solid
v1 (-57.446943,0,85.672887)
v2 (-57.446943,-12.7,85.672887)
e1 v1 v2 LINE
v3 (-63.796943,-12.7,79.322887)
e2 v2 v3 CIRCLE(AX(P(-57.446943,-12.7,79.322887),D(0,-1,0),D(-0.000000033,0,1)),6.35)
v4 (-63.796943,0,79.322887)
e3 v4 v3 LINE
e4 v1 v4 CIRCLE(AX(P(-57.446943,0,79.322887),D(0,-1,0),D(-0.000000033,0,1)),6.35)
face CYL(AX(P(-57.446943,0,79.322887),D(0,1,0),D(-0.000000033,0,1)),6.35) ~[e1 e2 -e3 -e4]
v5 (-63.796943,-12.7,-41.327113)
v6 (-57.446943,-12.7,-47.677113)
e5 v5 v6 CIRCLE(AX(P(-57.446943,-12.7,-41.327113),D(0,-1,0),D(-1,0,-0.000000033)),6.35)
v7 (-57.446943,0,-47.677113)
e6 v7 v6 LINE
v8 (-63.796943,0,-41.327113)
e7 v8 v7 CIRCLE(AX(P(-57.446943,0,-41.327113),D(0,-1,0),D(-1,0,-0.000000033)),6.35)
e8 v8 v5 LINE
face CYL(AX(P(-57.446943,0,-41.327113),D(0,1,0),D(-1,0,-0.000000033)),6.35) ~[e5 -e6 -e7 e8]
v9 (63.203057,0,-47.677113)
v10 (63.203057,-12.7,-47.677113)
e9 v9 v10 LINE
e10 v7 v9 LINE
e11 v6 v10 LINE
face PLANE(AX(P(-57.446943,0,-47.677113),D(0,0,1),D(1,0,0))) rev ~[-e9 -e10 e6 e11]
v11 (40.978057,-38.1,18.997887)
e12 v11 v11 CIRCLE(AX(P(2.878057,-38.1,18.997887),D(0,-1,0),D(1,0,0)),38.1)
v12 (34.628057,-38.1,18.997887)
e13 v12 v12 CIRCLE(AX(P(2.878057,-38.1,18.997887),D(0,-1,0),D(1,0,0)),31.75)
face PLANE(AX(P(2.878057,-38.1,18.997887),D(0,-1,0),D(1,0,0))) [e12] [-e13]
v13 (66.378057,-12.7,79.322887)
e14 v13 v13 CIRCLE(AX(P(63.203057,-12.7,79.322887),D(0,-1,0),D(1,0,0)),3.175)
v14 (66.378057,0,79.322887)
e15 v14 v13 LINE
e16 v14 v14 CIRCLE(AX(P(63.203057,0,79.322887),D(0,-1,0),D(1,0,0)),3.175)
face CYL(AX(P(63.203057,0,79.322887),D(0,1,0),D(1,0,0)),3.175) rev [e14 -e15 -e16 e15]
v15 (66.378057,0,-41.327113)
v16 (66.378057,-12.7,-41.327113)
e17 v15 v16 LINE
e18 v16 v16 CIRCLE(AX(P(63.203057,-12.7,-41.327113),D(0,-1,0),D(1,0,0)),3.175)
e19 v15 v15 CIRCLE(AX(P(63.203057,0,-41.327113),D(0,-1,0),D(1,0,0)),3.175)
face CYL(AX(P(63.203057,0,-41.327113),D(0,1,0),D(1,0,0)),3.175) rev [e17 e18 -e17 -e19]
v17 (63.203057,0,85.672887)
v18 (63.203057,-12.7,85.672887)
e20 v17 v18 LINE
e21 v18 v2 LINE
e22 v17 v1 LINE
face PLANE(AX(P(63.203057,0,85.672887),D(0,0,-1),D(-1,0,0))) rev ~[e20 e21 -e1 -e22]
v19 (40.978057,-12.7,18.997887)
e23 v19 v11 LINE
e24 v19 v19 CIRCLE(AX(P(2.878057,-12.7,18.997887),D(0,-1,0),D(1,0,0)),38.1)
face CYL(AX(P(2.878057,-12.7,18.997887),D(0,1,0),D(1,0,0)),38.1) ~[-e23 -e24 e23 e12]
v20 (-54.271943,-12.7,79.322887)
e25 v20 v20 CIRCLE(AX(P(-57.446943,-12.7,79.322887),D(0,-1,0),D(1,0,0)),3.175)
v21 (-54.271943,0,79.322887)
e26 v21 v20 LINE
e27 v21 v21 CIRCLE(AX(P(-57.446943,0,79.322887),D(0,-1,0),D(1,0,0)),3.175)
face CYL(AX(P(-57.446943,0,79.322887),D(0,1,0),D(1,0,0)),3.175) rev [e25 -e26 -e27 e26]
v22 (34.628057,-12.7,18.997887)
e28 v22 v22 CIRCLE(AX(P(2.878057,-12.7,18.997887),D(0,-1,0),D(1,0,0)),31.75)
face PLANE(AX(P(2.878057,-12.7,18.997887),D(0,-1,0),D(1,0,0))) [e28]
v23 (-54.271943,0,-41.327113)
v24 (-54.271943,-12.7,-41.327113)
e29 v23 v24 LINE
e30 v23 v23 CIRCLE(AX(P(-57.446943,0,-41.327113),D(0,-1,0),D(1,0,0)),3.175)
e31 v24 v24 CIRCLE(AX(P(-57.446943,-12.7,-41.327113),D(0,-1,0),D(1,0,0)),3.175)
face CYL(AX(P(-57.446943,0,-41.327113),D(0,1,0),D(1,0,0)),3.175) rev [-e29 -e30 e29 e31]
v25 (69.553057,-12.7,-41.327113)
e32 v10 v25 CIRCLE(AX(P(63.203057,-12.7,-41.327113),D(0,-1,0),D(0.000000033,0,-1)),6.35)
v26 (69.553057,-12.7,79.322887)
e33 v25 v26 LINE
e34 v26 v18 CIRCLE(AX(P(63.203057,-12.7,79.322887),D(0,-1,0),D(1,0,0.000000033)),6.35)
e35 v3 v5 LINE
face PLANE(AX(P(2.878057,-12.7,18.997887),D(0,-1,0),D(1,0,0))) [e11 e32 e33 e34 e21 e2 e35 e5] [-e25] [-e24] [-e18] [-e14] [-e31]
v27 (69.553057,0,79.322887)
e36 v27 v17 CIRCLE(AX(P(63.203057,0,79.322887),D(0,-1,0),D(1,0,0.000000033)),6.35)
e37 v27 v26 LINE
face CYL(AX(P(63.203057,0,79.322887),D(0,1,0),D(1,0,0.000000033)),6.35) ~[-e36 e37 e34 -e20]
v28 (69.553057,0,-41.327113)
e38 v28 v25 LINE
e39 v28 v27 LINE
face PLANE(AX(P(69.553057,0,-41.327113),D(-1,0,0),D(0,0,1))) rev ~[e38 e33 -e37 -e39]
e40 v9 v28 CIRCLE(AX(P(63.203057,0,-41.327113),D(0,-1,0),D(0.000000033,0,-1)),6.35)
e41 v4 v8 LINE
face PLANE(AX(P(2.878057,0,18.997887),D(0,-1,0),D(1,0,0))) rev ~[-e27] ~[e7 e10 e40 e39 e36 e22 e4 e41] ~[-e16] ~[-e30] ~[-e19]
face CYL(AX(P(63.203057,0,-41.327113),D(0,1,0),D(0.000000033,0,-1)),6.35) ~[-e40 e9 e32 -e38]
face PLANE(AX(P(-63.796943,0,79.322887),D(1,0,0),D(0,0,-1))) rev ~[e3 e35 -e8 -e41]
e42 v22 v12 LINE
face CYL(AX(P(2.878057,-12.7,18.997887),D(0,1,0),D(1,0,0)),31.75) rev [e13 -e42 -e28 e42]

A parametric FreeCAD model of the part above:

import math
import FreeCAD as App
import Part
import Sketcher
Q = App.Units.Quantity

doc = App.newDocument("Part")
body = doc.addObject("PartDesign::Body", "Body")

sketch1 = doc.addObject("Sketcher::SketchObject", "Sketch")
body.addObject(sketch1)
sketch1.AttachmentSupport = (doc.XZ_Plane, [""])
sketch1.MapMode = "FlatFace"
sketch1.addGeometry([
    Part.LineSegment(App.Vector(63.2, 85.7, 0), App.Vector(-57.4, 85.7, 0)),
    Part.ArcOfCircle(Part.Circle(App.Vector(-57.4, 79.3, 0), App.Vector(0, 0, 1), 6.4), math.radians(90), math.radians(180)),
    Part.LineSegment(App.Vector(-63.8, 79.3, 0), App.Vector(-63.8, -41.3, 0)),
    Part.ArcOfCircle(Part.Circle(App.Vector(-57.4, -41.3, 0), App.Vector(0, 0, 1), 6.4), math.radians(-180), math.radians(-90)),
    Part.LineSegment(App.Vector(-57.4, -47.7, 0), App.Vector(63.2, -47.7, 0)),
    Part.ArcOfCircle(Part.Circle(App.Vector(63.2, -41.3, 0), App.Vector(0, 0, 1), 6.4), math.radians(-90), math.radians(0)),
    Part.LineSegment(App.Vector(69.6, -41.3, 0), App.Vector(69.6, 79.3, 0)),
    Part.ArcOfCircle(Part.Circle(App.Vector(63.2, 79.3, 0), App.Vector(0, 0, 1), 6.4), math.radians(0), math.radians(90)),
    Part.Circle(App.Vector(-57.4, -41.3, 0), App.Vector(0, 0, 1), 3.2),
    Part.Circle(App.Vector(63.2, -41.3, 0), App.Vector(0, 0, 1), 3.2),
    Part.Circle(App.Vector(-57.4, 79.3, 0), App.Vector(0, 0, 1), 3.2),
    Part.Circle(App.Vector(63.2, 79.3, 0), App.Vector(0, 0, 1), 3.2),
], False)
sketch1.addConstraint([
    Sketcher.Constraint("Tangent", 0, 2, 1, 1),
    Sketcher.Constraint("Tangent", 1, 2, 2, 1),
    Sketcher.Constraint("Tangent", 2, 2, 3, 1),
    Sketcher.Constraint("Tangent", 3, 2, 4, 1),
    Sketcher.Constraint("Tangent", 4, 2, 5, 1),
    Sketcher.Constraint("Tangent", 5, 2, 6, 1),
    Sketcher.Constraint("Tangent", 6, 2, 7, 1),
    Sketcher.Constraint("Tangent", 7, 2, 0, 1),
    Sketcher.Constraint("Horizontal", 0),
    Sketcher.Constraint("Vertical", 2),
    Sketcher.Constraint("Horizontal", 4),
    Sketcher.Constraint("Vertical", 6),
    Sketcher.Constraint("Coincident", 8, 3, 3, 3),
    Sketcher.Constraint("Coincident", 9, 3, 5, 3),
    Sketcher.Constraint("Coincident", 10, 3, 1, 3),
    Sketcher.Constraint("Coincident", 11, 3, 7, 3),
    Sketcher.Constraint("Equal", 1, 3),
    Sketcher.Constraint("Equal", 3, 5),
    Sketcher.Constraint("Equal", 5, 7),
    Sketcher.Constraint("Equal", 8, 9),
    Sketcher.Constraint("Equal", 9, 10),
    Sketcher.Constraint("Equal", 10, 11),
    Sketcher.Constraint("Equal", 4, 2),
    Sketcher.Constraint("Diameter", 8, Q("0.25 in")),
    Sketcher.Constraint("Radius", 1, Q("0.25 in")),
    Sketcher.Constraint("DistanceY", 3, 3, 0, 2, Q("5 in")),
    Sketcher.Constraint("DistanceX", 1, 3, -1, 1, 57.446943),
    Sketcher.Constraint("DistanceY", -1, 1, 1, 3, 79.322887),
])
pad1 = doc.addObject("PartDesign::Pad", "Pad")
body.addObject(pad1)
pad1.Profile = sketch1
pad1.Length = Q("0.5 in")

sketch2 = doc.addObject("Sketcher::SketchObject", "Sketch001")
body.addObject(sketch2)
sketch2.AttachmentSupport = (doc.XZ_Plane, [""])
sketch2.MapMode = "FlatFace"
sketch2.AttachmentOffset = App.Placement(App.Vector(0, 0, 0.5 * 25.4), App.Rotation())
sketch2.addGeometry([
    Part.Circle(App.Vector(3, 19, 0), App.Vector(0, 0, 1), 38),
    Part.Circle(App.Vector(3, 19, 0), App.Vector(0, 0, 1), 32),
], False)
sketch2.addConstraint([
    Sketcher.Constraint("Coincident", 1, 3, 0, 3),
    Sketcher.Constraint("Diameter", 0, Q("3 in")),
    Sketcher.Constraint("Diameter", 1, Q("2.5 in")),
    Sketcher.Constraint("DistanceX", -1, 1, 0, 3, 2.878057),
    Sketcher.Constraint("DistanceY", -1, 1, 0, 3, 18.997887),
])
pad2 = doc.addObject("PartDesign::Pad", "Pad001")
body.addObject(pad2)
pad2.Profile = sketch2
pad2.Length = Q("1 in")

doc.recompute()
